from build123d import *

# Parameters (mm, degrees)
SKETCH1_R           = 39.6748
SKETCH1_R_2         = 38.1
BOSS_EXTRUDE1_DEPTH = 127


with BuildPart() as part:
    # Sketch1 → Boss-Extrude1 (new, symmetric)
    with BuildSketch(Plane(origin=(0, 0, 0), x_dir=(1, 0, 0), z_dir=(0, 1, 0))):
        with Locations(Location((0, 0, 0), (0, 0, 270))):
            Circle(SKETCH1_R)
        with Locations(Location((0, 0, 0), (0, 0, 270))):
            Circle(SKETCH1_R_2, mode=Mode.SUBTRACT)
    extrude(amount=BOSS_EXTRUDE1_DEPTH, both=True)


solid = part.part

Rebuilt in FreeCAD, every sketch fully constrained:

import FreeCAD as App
import Part
import Sketcher
Q = App.Units.Quantity

doc = App.newDocument("Part")
params = doc.addObject("Spreadsheet::Sheet", "Params")
for row, (alias, value) in enumerate([
    ("sketch1_diameter", "3 in"),
    ("sketch1_diameter2", "3.124 in"),
    ("pad1_length", "10 in"),
], start=1):
    params.set(f"A{row}", alias)
    params.set(f"B{row}", "=" + value)
    params.setAlias(f"B{row}", alias)

body = doc.addObject("PartDesign::Body", "Body")

sketch1 = doc.addObject("Sketcher::SketchObject", "Sketch")
body.addObject(sketch1)
sketch1.AttachmentSupport = (doc.XZ_Plane, [""])
sketch1.MapMode = "FlatFace"
sketch1.addGeometry(Part.Circle(App.Vector(0, 0, 0), App.Vector(0, 0, 1), 40), False)
sketch1.addGeometry(Part.Circle(App.Vector(0, 0, 0), App.Vector(0, 0, 1), 38), False)
sketch1.addConstraint(Sketcher.Constraint("Coincident", 0, 3, -1, 1))
sketch1.addConstraint(Sketcher.Constraint("Coincident", 1, 3, -1, 1))
sketch1.addConstraint(Sketcher.Constraint("Diameter", 1, Q("3 in")))
sketch1.addConstraint(Sketcher.Constraint("Diameter", 0, Q("3.124 in")))
sketch1.setExpression("Constraints[2]", "Params.sketch1_diameter")
sketch1.setExpression("Constraints[3]", "Params.sketch1_diameter2")
pad1 = doc.addObject("PartDesign::Pad", "Pad")
body.addObject(pad1)
pad1.Profile = sketch1
pad1.setExpression("Length", "Params.pad1_length")
pad1.Midplane = True

doc.recompute()
